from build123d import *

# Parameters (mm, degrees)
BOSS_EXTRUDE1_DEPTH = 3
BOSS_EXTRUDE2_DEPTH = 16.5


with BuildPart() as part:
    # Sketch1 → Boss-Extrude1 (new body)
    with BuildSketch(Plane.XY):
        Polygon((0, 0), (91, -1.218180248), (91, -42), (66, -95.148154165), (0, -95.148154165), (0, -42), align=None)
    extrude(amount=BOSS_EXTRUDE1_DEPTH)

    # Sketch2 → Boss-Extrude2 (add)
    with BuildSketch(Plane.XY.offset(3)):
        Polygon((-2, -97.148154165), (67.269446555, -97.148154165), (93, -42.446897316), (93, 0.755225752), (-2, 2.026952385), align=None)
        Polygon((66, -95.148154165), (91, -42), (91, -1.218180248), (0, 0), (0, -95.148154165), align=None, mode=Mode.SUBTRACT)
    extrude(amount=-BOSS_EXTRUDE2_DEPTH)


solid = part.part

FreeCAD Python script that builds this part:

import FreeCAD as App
import Part
import Sketcher


def add_polygon(sketch, points):
    """Adds a closed chain of lines whose ends are joined by coincident constraints."""
    first, n = sketch.GeometryCount, len(points)
    for a, b in zip(points, points[1:] + points[:1]):
        sketch.addGeometry(Part.LineSegment(App.Vector(*a, 0), App.Vector(*b, 0)), False)
    for i in range(n):
        sketch.addConstraint(Sketcher.Constraint("Coincident", first + i, 2, first + (i + 1) % n, 1))

doc = App.newDocument("Part")
body = doc.addObject("PartDesign::Body", "Body")

sketch1 = body.newObject("Sketcher::SketchObject", "Sketch")
sketch1.AttachmentSupport = (doc.getObject("XY_Plane"), [""])
sketch1.MapMode = "FlatFace"
add_polygon(sketch1, [(91, -1), (0, 0), (0, -95), (66, -95), (91, -42)])
sketch1.addConstraint([
    Sketcher.Constraint("Vertical", 1),
    Sketcher.Constraint("Horizontal", 2),
    Sketcher.Constraint("Vertical", 4),
    Sketcher.Constraint("Coincident", 0, 2, -1, 1),
    Sketcher.Constraint("DistanceX", 2, 1, 2, 2, 66.0),
    Sketcher.Constraint("DistanceX", -1, 1, 3, 2, 91.0),
    Sketcher.Constraint("DistanceY", 3, 2, -1, 1, 42.0),
    Sketcher.Constraint("DistanceY", 4, 1, 4, 2, 40.78182),
    Sketcher.Constraint("Distance", 3, 58.734371),
])
pad1 = body.newObject("PartDesign::Pad", "Pad")
pad1.Profile = sketch1
pad1.Length = 3

sketch2 = body.newObject("Sketcher::SketchObject", "Sketch001")
sketch2.AttachmentSupport = (doc.getObject("XY_Plane"), [""])
sketch2.MapMode = "FlatFace"
sketch2.AttachmentOffset = App.Placement(App.Vector(0, 0, 3), App.Rotation())
add_polygon(sketch2, [(-2, -97), (67, -97), (93, -42), (93, 1), (-2, 2)])
add_polygon(sketch2, [(91, -42), (66, -95), (0, -95), (0, 0), (91, -1)])
sketch2.addConstraint([
    Sketcher.Constraint("Horizontal", 0),
    Sketcher.Constraint("Vertical", 2),
    Sketcher.Constraint("Vertical", 4),
    Sketcher.Constraint("Horizontal", 6),
    Sketcher.Constraint("Vertical", 7),
    Sketcher.Constraint("Vertical", 9),
    Sketcher.Constraint("Coincident", 7, 2, -1, 1),
    Sketcher.Constraint("Parallel", 1, 5),
    Sketcher.Constraint("Parallel", 3, 8),
    Sketcher.Constraint("DistanceX", 6, 2, 6, 1, 66.0),
    Sketcher.Constraint("DistanceX", -1, 1, 1, 2, 93.0),
    Sketcher.Constraint("DistanceX", 3, 2, -1, 1, 2.0),
    Sketcher.Constraint("DistanceX", -1, 1, 8, 2, 91.0),
    Sketcher.Constraint("DistanceY", 9, 2, -1, 1, 42.0),
    Sketcher.Constraint("DistanceY", 0, 2, 5, 2, 2.0),
    Sketcher.Constraint("DistanceY", 9, 2, 9, 1, 40.78182),
    Sketcher.Constraint("Distance", 5, 58.734371),
    Sketcher.Constraint("DistanceX", 0, 1, 0, 2, 69.269447),
    Sketcher.Constraint("DistanceY", 2, 1, 2, 2, 43.202123),
])
pad2 = body.newObject("PartDesign::Pad", "Pad001")
pad2.Profile = sketch2
pad2.Length = 16.5
pad2.Reversed = True

doc.recompute()
